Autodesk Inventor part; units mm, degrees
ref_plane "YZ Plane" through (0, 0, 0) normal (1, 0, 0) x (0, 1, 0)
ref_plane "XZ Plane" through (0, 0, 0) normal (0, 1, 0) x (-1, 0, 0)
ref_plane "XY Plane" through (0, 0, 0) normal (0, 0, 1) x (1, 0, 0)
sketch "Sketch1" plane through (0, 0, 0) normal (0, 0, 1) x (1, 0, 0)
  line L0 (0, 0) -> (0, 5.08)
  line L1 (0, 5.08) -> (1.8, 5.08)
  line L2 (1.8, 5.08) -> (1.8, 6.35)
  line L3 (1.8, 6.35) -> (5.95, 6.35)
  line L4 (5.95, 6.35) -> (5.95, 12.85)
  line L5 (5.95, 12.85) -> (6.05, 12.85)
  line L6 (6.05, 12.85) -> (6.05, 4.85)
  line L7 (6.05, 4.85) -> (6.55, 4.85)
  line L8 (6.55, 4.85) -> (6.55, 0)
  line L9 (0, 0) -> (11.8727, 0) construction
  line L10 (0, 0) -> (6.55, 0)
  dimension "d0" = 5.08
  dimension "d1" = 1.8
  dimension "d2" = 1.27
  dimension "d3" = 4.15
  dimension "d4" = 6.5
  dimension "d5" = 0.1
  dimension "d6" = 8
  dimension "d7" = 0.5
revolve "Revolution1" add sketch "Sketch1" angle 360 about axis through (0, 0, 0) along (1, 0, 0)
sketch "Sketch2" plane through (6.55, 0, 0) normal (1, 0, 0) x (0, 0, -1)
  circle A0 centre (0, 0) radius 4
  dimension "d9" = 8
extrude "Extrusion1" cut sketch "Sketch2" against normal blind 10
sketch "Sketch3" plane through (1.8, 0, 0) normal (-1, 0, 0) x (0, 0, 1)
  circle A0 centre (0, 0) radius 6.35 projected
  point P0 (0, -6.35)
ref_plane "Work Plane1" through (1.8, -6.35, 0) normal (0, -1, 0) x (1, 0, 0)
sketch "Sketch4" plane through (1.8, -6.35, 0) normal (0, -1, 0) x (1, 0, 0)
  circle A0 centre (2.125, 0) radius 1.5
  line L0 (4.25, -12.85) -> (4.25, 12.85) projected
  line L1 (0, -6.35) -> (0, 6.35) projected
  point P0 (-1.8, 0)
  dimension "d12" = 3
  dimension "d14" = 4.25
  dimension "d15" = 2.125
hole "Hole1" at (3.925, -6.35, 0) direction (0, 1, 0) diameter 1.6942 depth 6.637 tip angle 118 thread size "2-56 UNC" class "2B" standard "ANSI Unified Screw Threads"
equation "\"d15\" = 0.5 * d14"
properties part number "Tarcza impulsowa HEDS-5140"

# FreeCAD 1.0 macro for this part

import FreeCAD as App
import Part
import Sketcher
from FreeCAD import Vector
Q = App.Units.Quantity

doc = App.newDocument("Part")
params = doc.addObject("Spreadsheet::Sheet", "Params")
for row, (alias, value) in enumerate([
    ("sketch1_height", "8 mm"),
    ("sketch1_width", "0.5 mm"),
    ("sketch1_width2", "0.1 mm"),
    ("sketch1_width3", "1.8 mm"),
    ("sketch1_height2", "6.5 mm"),
    ("revolution_angle", "360 deg"),
    ("sketch2_diameter", "8 mm"),
    ("pocket1_length", "10 mm"),
    ("hole_diameter", "1.6942 mm"),
    ("hole_depth", "6.637 mm"),
], start=1):
    params.set(f"A{row}", alias)
    params.set(f"B{row}", "=" + value)
    params.setAlias(f"B{row}", alias)

body = doc.addObject("PartDesign::Body", "Body")

# Sketch on XY plane
sketch1 = doc.addObject("Sketcher::SketchObject", "Sketch")
body.addObject(sketch1)
sketch1.AttachmentSupport = (doc.XY_Plane, [""])
sketch1.MapMode = "FlatFace"
sketch1.addGeometry([
    Part.LineSegment(Vector(0, 5.08, 0), Vector(0, 0, 0)),  # 0
    Part.LineSegment(Vector(0, 0, 0), Vector(6.55, 0, 0)),  # 1
    Part.LineSegment(Vector(6.55, 0, 0), Vector(6.55, 4.85, 0)),  # 2
    Part.LineSegment(Vector(6.55, 4.85, 0), Vector(6.05, 4.85, 0)),  # 3
    Part.LineSegment(Vector(6.05, 4.85, 0), Vector(6.05, 12.85, 0)),  # 4
    Part.LineSegment(Vector(6.05, 12.85, 0), Vector(5.95, 12.85, 0)),  # 5
    Part.LineSegment(Vector(5.95, 12.85, 0), Vector(5.95, 6.35, 0)),  # 6
    Part.LineSegment(Vector(5.95, 6.35, 0), Vector(1.8, 6.35, 0)),  # 7
    Part.LineSegment(Vector(1.8, 6.35, 0), Vector(1.8, 5.08, 0)),  # 8
    Part.LineSegment(Vector(1.8, 5.08, 0), Vector(0, 5.08, 0)),  # 9
], False)
sketch1.addConstraint([
    Sketcher.Constraint("Coincident", 0, 2, 1, 1),
    Sketcher.Constraint("Coincident", 1, 2, 2, 1),
    Sketcher.Constraint("Coincident", 2, 2, 3, 1),
    Sketcher.Constraint("Coincident", 3, 2, 4, 1),
    Sketcher.Constraint("Coincident", 4, 2, 5, 1),
    Sketcher.Constraint("Coincident", 5, 2, 6, 1),
    Sketcher.Constraint("Coincident", 6, 2, 7, 1),
    Sketcher.Constraint("Coincident", 7, 2, 8, 1),
    Sketcher.Constraint("Coincident", 8, 2, 9, 1),
    Sketcher.Constraint("Coincident", 9, 2, 0, 1),
    Sketcher.Constraint("Vertical", 0),
    Sketcher.Constraint("Horizontal", 1),
    Sketcher.Constraint("Vertical", 2),
    Sketcher.Constraint("Horizontal", 3),
    Sketcher.Constraint("Vertical", 4),
    Sketcher.Constraint("Horizontal", 5),
    Sketcher.Constraint("Vertical", 6),
    Sketcher.Constraint("Horizontal", 7),
    Sketcher.Constraint("Vertical", 8),
    Sketcher.Constraint("Horizontal", 9),
    Sketcher.Constraint("Coincident", 0, 2, -1, 1),
    Sketcher.Constraint("DistanceY", 4, 1, 4, 2, Q("8 mm")),
    Sketcher.Constraint("DistanceX", 3, 2, 3, 1, Q("0.5 mm")),
    Sketcher.Constraint("DistanceX", 5, 2, 5, 1, Q("0.1 mm")),
    Sketcher.Constraint("DistanceX", 9, 2, 9, 1, Q("1.8 mm")),
    Sketcher.Constraint("DistanceY", 6, 2, 6, 1, Q("6.5 mm")),
    Sketcher.Constraint("DistanceX", 7, 2, 7, 1, Q("4.15 mm")),
    Sketcher.Constraint("DistanceY", 0, 2, 0, 1, Q("5.08 mm")),
    Sketcher.Constraint("DistanceY", 8, 2, 8, 1, Q("1.27 mm")),
])
sketch1.setExpression("Constraints[21]", "Params.sketch1_height")
sketch1.setExpression("Constraints[22]", "Params.sketch1_width")
sketch1.setExpression("Constraints[23]", "Params.sketch1_width2")
sketch1.setExpression("Constraints[24]", "Params.sketch1_width3")
sketch1.setExpression("Constraints[25]", "Params.sketch1_height2")
revolution = doc.addObject("PartDesign::Revolution", "Revolution")
body.addObject(revolution)
revolution.Profile = sketch1
revolution.ReferenceAxis = (sketch1, ["H_Axis"])
revolution.setExpression("Angle", "Params.revolution_angle")

# Sketch on YZ plane
sketch2 = doc.addObject("Sketcher::SketchObject", "Sketch001")
body.addObject(sketch2)
sketch2.AttachmentSupport = (doc.YZ_Plane, [""])
sketch2.MapMode = "FlatFace"
sketch2.AttachmentOffset = App.Placement(Vector(0, 0, 6.55), App.Rotation())
sketch2.addGeometry(Part.Circle(Vector(0, 0, 0), Vector(0, 0, 1), 4), False)
sketch2.addConstraint([
    Sketcher.Constraint("Coincident", 0, 3, -1, 1),
    Sketcher.Constraint("Diameter", 0, Q("8 mm")),
])
sketch2.setExpression("Constraints[1]", "Params.sketch2_diameter")
pocket1 = doc.addObject("PartDesign::Pocket", "Pocket")
body.addObject(pocket1)
pocket1.Profile = sketch2
pocket1.setExpression("Length", "Params.pocket1_length")

# Sketch on XZ plane
sketch3 = doc.addObject("Sketcher::SketchObject", "Sketch002")
body.addObject(sketch3)
sketch3.AttachmentSupport = (doc.XZ_Plane, [""])
sketch3.MapMode = "FlatFace"
sketch3.AttachmentOffset = App.Placement(Vector(0, 0, 6.35), App.Rotation())
sketch3.addGeometry(Part.Circle(Vector(3.925, 0, 0), Vector(0, 0, 1), 0.8471), False)
sketch3.addConstraint([
    Sketcher.Constraint("PointOnObject", 0, 3, -1),
    Sketcher.Constraint("Diameter", 0, Q("1.6942 mm")),
    Sketcher.Constraint("DistanceX", -1, 1, 0, 3, Q("3.925 mm")),
])
doc.recompute()
hole = doc.addObject("PartDesign::Hole", "Hole")
body.addObject(hole)
hole.Profile = sketch3
hole.ThreadType = "None"
hole.setExpression("Diameter", "Params.hole_diameter")
hole.DepthType = "Dimension"
hole.setExpression("Depth", "Params.hole_depth")
hole.DrillPoint = "Angled"
hole.DrillPointAngle = 118

doc.recompute()
